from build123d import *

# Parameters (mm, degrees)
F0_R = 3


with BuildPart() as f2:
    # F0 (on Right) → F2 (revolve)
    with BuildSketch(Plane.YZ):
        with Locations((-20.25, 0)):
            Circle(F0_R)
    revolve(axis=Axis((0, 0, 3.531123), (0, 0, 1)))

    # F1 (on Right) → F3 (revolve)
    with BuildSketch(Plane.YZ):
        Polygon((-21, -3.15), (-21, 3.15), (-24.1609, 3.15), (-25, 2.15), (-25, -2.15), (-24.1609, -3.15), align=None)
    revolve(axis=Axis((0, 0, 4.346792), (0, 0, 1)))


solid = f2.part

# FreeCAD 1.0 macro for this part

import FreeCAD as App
import Part
import Sketcher

V = App.Vector
Q = App.Units.Quantity

doc = App.newDocument("Part")
body = doc.addObject("PartDesign::Body", "Body")

# Sketch on YZ plane
sketch1 = body.newObject("Sketcher::SketchObject", "Sketch")
sketch1.AttachmentSupport = (doc.getObject("YZ_Plane"), [""])
sketch1.MapMode = "FlatFace"
sketch1.addGeometry(Part.Circle(V(-20.25, 0, 0), V(0, 0, 1), 3), False)
sketch1.addConstraint([
    Sketcher.Constraint("PointOnObject", 0, 3, -1),
    Sketcher.Constraint("Diameter", 0, Q("6 mm")),
    Sketcher.Constraint("DistanceX", 0, 3, -1, 1, Q("20.25 mm")),
])
revolution = body.newObject("PartDesign::Revolution", "Revolution")
revolution.Profile = sketch1
revolution.ReferenceAxis = (sketch1, ["V_Axis"])
revolution.Angle = 360

# Sketch on YZ plane
sketch2 = body.newObject("Sketcher::SketchObject", "Sketch001")
sketch2.AttachmentSupport = (doc.getObject("YZ_Plane"), [""])
sketch2.MapMode = "FlatFace"
sketch2.addGeometry([
    Part.LineSegment(V(-21, -3.15, 0), V(-21, 3.15, 0)),  # 0
    Part.LineSegment(V(-21, 3.15, 0), V(-24.1609, 3.15, 0)),  # 1
    Part.LineSegment(V(-24.1609, 3.15, 0), V(-25, 2.15, 0)),  # 2
    Part.LineSegment(V(-25, 2.15, 0), V(-25, -2.15, 0)),  # 3
    Part.LineSegment(V(-25, -2.15, 0), V(-24.1609, -3.15, 0)),  # 4
    Part.LineSegment(V(-24.1609, -3.15, 0), V(-21, -3.15, 0)),  # 5
], False)
sketch2.addConstraint([
    Sketcher.Constraint("Coincident", 0, 2, 1, 1),
    Sketcher.Constraint("Coincident", 1, 2, 2, 1),
    Sketcher.Constraint("Coincident", 2, 2, 3, 1),
    Sketcher.Constraint("Coincident", 3, 2, 4, 1),
    Sketcher.Constraint("Coincident", 4, 2, 5, 1),
    Sketcher.Constraint("Coincident", 5, 2, 0, 1),
    Sketcher.Constraint("Vertical", 0),
    Sketcher.Constraint("Horizontal", 1),
    Sketcher.Constraint("Vertical", 3),
    Sketcher.Constraint("Horizontal", 5),
    Sketcher.Constraint("Symmetric", 1, 2, 4, 2, -1),
    Sketcher.Constraint("Equal", 2, 4),
    Sketcher.Constraint("Angle", 2, Q("-130.000012 deg")),
    Sketcher.Constraint("DistanceY", 0, 1, 0, 2, Q("6.3 mm")),
    Sketcher.Constraint("DistanceY", 3, 2, 3, 1, Q("4.3 mm")),
    Sketcher.Constraint("DistanceX", 0, 2, -1, 1, Q("21 mm")),
    Sketcher.Constraint("DistanceX", 2, 2, -1, 1, Q("25 mm")),
])
revolution2 = body.newObject("PartDesign::Revolution", "Revolution001")
revolution2.Profile = sketch2
revolution2.ReferenceAxis = (sketch2, ["V_Axis"])
revolution2.Angle = 360

doc.recompute()
